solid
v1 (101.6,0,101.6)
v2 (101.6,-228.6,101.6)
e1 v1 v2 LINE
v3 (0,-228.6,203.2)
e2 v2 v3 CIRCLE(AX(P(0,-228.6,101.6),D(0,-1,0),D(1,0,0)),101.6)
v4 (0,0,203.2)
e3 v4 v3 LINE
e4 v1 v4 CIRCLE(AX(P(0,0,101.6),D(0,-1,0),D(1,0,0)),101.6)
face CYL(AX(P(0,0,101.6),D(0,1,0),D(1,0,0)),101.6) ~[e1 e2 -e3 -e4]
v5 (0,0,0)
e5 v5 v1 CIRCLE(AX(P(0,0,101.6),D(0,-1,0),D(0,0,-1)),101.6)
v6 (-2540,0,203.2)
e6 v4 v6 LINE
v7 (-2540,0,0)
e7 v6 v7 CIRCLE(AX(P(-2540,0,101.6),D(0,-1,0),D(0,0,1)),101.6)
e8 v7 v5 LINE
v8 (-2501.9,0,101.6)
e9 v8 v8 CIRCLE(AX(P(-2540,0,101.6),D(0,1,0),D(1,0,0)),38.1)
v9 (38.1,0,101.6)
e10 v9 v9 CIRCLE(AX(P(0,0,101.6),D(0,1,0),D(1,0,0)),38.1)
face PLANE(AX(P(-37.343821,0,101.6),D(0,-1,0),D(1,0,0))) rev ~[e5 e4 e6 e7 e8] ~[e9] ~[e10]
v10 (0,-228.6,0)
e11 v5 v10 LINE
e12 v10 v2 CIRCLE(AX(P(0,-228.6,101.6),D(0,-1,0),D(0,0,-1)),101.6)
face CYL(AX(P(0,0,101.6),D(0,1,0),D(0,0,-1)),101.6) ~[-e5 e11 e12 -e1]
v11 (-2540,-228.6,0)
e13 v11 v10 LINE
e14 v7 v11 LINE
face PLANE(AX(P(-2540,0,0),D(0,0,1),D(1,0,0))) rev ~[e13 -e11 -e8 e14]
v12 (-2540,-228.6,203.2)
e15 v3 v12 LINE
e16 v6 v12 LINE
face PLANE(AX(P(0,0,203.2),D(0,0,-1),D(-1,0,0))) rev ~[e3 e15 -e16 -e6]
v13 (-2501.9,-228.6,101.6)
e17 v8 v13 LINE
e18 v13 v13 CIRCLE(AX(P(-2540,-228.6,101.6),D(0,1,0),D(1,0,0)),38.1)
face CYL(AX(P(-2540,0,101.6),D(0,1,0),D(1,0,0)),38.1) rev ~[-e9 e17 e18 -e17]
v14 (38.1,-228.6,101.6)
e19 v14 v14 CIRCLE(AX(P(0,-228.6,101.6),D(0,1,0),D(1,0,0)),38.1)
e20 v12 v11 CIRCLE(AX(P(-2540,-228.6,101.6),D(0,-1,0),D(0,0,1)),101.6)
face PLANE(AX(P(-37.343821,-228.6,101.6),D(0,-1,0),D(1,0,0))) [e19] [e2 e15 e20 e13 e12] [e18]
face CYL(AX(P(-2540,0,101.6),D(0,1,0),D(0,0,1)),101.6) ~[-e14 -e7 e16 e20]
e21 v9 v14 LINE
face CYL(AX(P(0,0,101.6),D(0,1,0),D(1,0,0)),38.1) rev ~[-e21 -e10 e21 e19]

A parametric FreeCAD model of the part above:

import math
import FreeCAD as App
import Part
import Sketcher
from FreeCAD import Vector
Q = App.Units.Quantity

doc = App.newDocument("Part")
params = doc.addObject("Spreadsheet::Sheet", "Params")
for row, (alias, value) in enumerate([
    ("sketch1_diameter", "3 in"),
    ("sketch1_radius", "4 in"),
    ("sketch1_width", "100 in"),
    ("pad1_length", "9 in"),
], start=1):
    params.set(f"A{row}", alias)
    params.set(f"B{row}", "=" + value)
    params.setAlias(f"B{row}", alias)

body = doc.addObject("PartDesign::Body", "Body")

sketch1 = body.newObject("Sketcher::SketchObject", "Sketch")
sketch1.AttachmentSupport = (doc.getObject("XZ_Plane"), [""])
sketch1.MapMode = "FlatFace"
sketch1.addGeometry([
    Part.LineSegment(Vector(0, 203.2, 0), Vector(-2540, 203.2, 0)),
    Part.ArcOfCircle(Part.Circle(Vector(-2540, 101.6, 0), Vector(0, 0, 1), 101.6), math.radians(90), math.radians(270)),
    Part.LineSegment(Vector(-2540, 0, 0), Vector(0, 0, 0)),
    Part.ArcOfCircle(Part.Circle(Vector(0, 101.6, 0), Vector(0, 0, 1), 101.6), math.radians(-90), math.radians(0)),
    Part.ArcOfCircle(Part.Circle(Vector(0, 101.6, 0), Vector(0, 0, 1), 101.6), math.radians(0), math.radians(90)),
    Part.Circle(Vector(0, 101.6, 0), Vector(0, 0, 1), 38.1),
    Part.Circle(Vector(-2540, 101.6, 0), Vector(0, 0, 1), 38.1),
], False)
sketch1.addConstraint([
    Sketcher.Constraint("Tangent", 0, 2, 1, 1),
    Sketcher.Constraint("Tangent", 1, 2, 2, 1),
    Sketcher.Constraint("Tangent", 2, 2, 3, 1),
    Sketcher.Constraint("Tangent", 3, 2, 4, 1),
    Sketcher.Constraint("Tangent", 4, 2, 0, 1),
    Sketcher.Constraint("Horizontal", 0),
    Sketcher.Constraint("Horizontal", 2),
    Sketcher.Constraint("Coincident", 2, 2, -1, 1),
    Sketcher.Constraint("Coincident", 5, 3, 3, 3),
    Sketcher.Constraint("Coincident", 6, 3, 1, 3),
    Sketcher.Constraint("Equal", 1, 3),
    Sketcher.Constraint("Equal", 5, 6),
    Sketcher.Constraint("Horizontal", 6, 3, 3, 2),
    Sketcher.Constraint("Diameter", 5, Q("3 in")),
    Sketcher.Constraint("Radius", 1, Q("4 in")),
    Sketcher.Constraint("DistanceX", 0, 2, 0, 1, Q("100 in")),
])
sketch1.setExpression("Constraints[13]", "Params.sketch1_diameter")
sketch1.setExpression("Constraints[14]", "Params.sketch1_radius")
sketch1.setExpression("Constraints[15]", "Params.sketch1_width")
pad1 = body.newObject("PartDesign::Pad", "Pad")
pad1.Profile = sketch1
pad1.setExpression("Length", "Params.pad1_length")

doc.recompute()
